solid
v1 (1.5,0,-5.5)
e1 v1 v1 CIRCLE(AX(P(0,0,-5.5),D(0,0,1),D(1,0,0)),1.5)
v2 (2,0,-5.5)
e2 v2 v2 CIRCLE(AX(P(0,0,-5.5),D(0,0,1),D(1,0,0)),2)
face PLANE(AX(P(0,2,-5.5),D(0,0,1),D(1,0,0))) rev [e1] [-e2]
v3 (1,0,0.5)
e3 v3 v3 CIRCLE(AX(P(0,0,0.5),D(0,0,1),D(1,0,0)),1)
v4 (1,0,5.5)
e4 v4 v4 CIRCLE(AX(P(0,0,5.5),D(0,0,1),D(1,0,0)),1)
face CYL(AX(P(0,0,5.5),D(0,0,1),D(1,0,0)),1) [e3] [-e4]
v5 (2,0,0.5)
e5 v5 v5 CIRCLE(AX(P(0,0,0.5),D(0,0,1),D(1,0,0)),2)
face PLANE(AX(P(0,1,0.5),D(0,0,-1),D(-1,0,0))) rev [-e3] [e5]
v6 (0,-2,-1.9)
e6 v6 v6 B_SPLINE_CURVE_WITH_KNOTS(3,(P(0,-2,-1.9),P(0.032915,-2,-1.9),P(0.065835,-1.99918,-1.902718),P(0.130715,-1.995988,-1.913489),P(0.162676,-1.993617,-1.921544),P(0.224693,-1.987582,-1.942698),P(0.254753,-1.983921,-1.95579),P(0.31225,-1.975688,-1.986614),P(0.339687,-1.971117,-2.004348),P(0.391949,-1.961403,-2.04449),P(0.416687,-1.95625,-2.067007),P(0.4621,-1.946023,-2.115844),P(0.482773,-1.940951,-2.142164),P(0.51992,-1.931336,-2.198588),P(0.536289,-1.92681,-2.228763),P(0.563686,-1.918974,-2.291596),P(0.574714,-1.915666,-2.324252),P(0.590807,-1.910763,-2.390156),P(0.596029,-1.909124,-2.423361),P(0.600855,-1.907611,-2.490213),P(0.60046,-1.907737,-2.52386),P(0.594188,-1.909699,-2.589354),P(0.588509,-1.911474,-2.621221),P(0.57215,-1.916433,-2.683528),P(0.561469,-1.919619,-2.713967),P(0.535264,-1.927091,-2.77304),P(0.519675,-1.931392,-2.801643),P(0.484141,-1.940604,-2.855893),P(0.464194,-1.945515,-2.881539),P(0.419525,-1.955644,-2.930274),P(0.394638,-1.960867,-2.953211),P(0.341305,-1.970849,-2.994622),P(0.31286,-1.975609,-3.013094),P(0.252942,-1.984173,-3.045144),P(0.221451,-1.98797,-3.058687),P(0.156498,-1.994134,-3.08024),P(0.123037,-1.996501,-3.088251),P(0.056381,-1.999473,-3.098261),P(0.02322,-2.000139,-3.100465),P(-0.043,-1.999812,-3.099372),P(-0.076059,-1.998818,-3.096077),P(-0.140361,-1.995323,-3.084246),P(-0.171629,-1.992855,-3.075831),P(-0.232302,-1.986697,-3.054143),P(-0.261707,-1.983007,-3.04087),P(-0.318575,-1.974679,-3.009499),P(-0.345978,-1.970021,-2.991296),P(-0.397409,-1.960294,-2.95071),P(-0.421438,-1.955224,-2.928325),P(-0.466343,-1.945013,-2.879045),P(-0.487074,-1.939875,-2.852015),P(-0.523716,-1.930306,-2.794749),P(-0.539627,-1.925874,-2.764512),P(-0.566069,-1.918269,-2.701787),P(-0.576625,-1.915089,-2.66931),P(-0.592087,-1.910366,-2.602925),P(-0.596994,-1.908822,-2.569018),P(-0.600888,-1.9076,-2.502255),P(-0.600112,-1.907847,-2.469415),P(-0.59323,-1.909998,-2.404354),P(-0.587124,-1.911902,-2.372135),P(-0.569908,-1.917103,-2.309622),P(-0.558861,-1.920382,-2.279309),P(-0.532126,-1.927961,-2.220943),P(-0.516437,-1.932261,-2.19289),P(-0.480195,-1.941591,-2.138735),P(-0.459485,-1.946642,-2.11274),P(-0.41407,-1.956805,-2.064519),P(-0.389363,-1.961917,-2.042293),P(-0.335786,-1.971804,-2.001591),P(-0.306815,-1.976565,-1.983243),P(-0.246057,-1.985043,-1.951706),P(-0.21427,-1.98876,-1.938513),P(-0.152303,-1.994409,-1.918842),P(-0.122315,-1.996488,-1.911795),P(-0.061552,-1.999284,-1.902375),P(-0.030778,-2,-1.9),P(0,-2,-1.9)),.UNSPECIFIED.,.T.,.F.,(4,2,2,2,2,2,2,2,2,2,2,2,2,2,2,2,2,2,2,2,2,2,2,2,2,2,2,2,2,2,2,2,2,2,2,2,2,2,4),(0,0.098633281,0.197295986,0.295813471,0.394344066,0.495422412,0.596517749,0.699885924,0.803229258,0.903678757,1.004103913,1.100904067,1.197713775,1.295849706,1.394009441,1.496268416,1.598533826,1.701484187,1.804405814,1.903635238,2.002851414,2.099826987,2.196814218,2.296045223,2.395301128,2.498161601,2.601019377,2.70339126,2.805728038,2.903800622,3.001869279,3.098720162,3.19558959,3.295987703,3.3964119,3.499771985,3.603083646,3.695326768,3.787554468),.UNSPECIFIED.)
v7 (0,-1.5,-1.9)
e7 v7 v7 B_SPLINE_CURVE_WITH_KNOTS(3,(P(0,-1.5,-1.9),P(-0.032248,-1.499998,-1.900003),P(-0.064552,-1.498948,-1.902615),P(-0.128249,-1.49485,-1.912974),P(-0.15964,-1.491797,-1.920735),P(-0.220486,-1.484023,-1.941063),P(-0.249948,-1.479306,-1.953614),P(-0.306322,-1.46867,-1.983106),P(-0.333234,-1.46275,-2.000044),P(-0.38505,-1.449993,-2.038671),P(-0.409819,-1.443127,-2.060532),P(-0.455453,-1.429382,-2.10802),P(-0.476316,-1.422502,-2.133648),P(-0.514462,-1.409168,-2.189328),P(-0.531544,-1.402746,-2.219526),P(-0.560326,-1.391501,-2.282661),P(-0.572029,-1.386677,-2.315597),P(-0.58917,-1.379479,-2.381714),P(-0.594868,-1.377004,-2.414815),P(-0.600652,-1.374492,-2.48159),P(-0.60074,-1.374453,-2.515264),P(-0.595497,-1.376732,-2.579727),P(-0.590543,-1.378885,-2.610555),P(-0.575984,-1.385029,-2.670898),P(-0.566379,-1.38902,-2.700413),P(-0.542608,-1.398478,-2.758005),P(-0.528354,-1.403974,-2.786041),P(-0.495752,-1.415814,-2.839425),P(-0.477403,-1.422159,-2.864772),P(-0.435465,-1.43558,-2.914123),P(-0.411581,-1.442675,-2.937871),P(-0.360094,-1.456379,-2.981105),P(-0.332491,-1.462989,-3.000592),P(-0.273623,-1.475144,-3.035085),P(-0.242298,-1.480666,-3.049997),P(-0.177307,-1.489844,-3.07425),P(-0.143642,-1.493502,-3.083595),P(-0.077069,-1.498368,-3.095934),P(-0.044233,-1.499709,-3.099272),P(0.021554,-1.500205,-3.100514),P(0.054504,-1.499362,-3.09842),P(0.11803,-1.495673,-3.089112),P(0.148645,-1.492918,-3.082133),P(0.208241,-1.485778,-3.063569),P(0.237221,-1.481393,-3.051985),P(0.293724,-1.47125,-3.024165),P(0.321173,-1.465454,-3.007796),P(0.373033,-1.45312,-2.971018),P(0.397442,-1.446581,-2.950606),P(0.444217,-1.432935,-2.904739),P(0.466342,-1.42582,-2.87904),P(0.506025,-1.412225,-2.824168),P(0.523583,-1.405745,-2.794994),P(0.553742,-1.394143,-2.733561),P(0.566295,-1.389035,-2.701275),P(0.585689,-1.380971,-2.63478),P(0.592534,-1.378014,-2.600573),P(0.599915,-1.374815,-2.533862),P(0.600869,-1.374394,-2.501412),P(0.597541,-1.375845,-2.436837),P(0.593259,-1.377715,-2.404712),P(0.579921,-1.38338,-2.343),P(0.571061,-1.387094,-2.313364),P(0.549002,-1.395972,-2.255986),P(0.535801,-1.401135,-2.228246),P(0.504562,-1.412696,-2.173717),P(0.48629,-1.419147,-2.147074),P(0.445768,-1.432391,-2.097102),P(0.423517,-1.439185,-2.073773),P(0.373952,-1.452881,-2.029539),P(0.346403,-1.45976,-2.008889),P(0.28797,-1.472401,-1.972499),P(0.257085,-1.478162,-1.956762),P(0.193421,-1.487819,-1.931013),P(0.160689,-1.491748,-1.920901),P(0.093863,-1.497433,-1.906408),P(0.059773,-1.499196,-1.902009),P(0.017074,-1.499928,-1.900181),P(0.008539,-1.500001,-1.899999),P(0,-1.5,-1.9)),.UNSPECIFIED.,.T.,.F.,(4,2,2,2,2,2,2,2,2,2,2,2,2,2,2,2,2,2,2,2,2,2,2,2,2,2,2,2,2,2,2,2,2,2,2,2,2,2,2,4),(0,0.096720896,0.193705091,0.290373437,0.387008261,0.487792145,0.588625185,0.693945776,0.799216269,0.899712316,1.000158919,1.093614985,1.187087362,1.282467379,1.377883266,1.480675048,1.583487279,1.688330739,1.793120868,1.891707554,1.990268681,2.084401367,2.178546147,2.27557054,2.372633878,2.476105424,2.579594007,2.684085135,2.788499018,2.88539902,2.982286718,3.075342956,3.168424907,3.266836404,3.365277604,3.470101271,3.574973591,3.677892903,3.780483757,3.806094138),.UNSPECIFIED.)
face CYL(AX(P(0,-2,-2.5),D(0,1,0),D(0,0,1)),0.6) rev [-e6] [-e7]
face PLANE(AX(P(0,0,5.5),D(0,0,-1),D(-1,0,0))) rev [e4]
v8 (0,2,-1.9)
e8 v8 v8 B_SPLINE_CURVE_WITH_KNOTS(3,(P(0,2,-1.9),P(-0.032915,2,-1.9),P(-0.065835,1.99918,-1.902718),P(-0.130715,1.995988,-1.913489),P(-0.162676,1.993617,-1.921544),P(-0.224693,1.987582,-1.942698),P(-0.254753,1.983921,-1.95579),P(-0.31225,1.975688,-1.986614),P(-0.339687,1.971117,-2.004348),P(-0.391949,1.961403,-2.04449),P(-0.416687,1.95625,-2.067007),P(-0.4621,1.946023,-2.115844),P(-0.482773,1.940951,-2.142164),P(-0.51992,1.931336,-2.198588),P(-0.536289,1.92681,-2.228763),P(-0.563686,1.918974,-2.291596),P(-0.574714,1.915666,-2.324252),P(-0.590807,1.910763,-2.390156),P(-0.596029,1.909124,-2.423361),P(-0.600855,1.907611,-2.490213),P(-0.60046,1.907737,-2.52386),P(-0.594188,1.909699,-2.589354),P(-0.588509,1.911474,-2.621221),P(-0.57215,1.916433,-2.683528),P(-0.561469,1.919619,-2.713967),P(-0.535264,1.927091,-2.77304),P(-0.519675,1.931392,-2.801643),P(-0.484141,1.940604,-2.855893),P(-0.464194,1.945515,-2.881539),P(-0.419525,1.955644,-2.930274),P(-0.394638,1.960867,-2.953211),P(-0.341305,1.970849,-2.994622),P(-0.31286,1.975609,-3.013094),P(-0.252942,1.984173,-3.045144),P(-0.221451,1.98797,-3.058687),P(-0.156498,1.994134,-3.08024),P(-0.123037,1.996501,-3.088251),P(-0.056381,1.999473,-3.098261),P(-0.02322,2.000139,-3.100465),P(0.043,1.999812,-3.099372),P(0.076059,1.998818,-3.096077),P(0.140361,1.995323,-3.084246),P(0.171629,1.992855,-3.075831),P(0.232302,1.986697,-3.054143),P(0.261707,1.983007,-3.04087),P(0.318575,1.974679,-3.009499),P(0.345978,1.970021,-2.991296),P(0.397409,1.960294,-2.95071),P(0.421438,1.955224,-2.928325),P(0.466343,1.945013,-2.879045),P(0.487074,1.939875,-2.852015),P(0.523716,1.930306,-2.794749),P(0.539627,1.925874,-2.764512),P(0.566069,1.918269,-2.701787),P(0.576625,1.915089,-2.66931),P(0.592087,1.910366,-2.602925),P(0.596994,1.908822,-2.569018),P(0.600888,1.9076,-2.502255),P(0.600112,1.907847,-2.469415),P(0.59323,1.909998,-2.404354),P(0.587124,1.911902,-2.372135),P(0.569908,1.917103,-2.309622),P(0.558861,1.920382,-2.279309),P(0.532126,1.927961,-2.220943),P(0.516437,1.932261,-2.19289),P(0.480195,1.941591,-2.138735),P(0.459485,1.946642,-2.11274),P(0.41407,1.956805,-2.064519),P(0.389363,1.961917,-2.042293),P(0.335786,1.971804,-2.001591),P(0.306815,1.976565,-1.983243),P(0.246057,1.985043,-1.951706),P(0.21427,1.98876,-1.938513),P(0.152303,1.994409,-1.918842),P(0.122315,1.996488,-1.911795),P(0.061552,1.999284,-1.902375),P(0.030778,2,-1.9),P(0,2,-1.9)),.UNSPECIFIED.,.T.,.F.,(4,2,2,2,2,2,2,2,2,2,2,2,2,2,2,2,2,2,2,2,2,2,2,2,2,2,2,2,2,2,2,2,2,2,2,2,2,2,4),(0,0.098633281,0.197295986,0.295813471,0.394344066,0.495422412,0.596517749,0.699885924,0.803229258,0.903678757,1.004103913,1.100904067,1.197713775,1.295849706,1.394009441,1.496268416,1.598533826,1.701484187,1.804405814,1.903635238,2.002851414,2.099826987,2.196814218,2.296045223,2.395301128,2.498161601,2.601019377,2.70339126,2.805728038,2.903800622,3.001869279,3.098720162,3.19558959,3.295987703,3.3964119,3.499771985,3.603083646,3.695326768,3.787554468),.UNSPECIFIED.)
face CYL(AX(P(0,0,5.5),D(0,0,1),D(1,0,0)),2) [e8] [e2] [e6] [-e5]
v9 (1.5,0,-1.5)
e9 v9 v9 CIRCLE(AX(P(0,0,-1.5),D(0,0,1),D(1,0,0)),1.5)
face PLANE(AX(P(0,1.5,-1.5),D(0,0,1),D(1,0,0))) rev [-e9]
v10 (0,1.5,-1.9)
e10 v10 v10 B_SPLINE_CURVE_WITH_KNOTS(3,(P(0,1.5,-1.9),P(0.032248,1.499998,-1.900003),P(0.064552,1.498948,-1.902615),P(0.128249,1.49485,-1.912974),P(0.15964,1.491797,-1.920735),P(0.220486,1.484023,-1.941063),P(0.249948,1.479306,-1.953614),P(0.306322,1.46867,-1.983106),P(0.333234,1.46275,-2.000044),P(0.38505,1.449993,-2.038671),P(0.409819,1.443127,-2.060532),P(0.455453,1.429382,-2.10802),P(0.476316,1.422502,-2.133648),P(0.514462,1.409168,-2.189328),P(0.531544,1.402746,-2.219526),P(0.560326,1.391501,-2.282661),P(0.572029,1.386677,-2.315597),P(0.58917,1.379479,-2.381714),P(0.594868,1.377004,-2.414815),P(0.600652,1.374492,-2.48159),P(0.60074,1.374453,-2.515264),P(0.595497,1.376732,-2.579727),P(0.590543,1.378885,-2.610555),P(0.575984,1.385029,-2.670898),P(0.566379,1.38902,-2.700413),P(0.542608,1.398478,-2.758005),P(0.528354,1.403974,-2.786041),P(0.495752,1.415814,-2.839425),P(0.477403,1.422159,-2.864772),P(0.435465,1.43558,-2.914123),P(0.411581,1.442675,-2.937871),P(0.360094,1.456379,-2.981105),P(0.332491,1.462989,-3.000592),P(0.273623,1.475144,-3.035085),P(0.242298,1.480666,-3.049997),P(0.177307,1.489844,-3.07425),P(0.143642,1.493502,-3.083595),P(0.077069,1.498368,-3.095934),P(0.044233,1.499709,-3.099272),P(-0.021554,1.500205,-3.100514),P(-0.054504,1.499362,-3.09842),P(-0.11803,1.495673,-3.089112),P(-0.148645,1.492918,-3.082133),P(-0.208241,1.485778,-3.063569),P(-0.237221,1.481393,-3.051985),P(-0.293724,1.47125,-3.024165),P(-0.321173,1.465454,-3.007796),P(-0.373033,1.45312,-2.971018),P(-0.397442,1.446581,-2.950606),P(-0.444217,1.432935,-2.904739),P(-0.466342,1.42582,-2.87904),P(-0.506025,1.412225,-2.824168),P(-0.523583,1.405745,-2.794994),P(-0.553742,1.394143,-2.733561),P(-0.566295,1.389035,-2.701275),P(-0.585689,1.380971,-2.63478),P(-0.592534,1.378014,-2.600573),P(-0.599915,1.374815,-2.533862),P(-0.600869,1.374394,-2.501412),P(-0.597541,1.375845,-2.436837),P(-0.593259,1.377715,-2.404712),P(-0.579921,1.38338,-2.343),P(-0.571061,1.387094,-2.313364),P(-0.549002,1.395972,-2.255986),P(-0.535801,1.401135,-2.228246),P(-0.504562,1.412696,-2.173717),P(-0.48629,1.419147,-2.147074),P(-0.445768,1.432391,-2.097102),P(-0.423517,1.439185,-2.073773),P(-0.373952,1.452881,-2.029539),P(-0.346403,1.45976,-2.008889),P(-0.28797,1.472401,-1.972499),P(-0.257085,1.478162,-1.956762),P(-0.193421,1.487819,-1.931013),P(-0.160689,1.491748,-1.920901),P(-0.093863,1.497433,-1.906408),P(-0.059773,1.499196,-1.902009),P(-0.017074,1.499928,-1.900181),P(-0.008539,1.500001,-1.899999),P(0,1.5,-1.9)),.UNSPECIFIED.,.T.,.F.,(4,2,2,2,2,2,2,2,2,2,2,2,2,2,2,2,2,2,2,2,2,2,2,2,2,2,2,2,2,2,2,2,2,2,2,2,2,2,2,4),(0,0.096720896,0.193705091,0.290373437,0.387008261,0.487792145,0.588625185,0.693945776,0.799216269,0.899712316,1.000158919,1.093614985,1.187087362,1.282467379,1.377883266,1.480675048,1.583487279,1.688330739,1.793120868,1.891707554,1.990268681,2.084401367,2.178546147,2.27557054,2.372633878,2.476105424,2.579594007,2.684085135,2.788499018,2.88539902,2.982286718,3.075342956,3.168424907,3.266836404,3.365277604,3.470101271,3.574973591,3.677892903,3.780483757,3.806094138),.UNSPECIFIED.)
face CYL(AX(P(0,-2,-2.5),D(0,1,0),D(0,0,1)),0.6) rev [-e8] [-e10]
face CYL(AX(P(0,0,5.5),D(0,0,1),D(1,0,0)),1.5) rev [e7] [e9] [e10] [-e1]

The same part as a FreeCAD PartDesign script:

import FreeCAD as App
import Part
import Sketcher
Q = App.Units.Quantity

doc = App.newDocument("Part")
body = doc.addObject("PartDesign::Body", "Body")

# Sketch on YZ plane
sketch1 = body.newObject("Sketcher::SketchObject", "Sketch")
sketch1.AttachmentSupport = (doc.getObject("YZ_Plane"), [""])
sketch1.MapMode = "FlatFace"
sketch1.addGeometry([
    Part.LineSegment(App.Vector(1, 5.5, 0), App.Vector(0, 5.5, 0)),  # 0
    Part.LineSegment(App.Vector(0, 5.5, 0), App.Vector(0, -1.5, 0)),  # 1
    Part.LineSegment(App.Vector(0, -1.5, 0), App.Vector(1.5, -1.5, 0)),  # 2
    Part.LineSegment(App.Vector(1.5, -1.5, 0), App.Vector(1.5, -5.5, 0)),  # 3
    Part.LineSegment(App.Vector(1.5, -5.5, 0), App.Vector(2, -5.5, 0)),  # 4
    Part.LineSegment(App.Vector(2, -5.5, 0), App.Vector(2, 0.5, 0)),  # 5
    Part.LineSegment(App.Vector(2, 0.5, 0), App.Vector(1, 0.5, 0)),  # 6
    Part.LineSegment(App.Vector(1, 0.5, 0), App.Vector(1, 5.5, 0)),  # 7
], False)
sketch1.addConstraint([
    Sketcher.Constraint("Coincident", 0, 2, 1, 1),
    Sketcher.Constraint("Coincident", 1, 2, 2, 1),
    Sketcher.Constraint("Coincident", 2, 2, 3, 1),
    Sketcher.Constraint("Coincident", 3, 2, 4, 1),
    Sketcher.Constraint("Coincident", 4, 2, 5, 1),
    Sketcher.Constraint("Coincident", 5, 2, 6, 1),
    Sketcher.Constraint("Coincident", 6, 2, 7, 1),
    Sketcher.Constraint("Coincident", 7, 2, 0, 1),
    Sketcher.Constraint("Horizontal", 0),
    Sketcher.Constraint("Vertical", 1),
    Sketcher.Constraint("Horizontal", 2),
    Sketcher.Constraint("Vertical", 3),
    Sketcher.Constraint("Horizontal", 4),
    Sketcher.Constraint("Vertical", 5),
    Sketcher.Constraint("Horizontal", 6),
    Sketcher.Constraint("Vertical", 7),
    Sketcher.Constraint("PointOnObject", 0, 2, -2),
    Sketcher.Constraint("Equal", 0, 6),
    Sketcher.Constraint("DistanceX", 0, 2, 0, 1, Q("1 mm")),
    Sketcher.Constraint("DistanceY", 1, 2, 1, 1, Q("7 mm")),
    Sketcher.Constraint("DistanceY", 3, 2, 3, 1, Q("4 mm")),
    Sketcher.Constraint("DistanceY", 5, 1, 5, 2, Q("6 mm")),
    Sketcher.Constraint("DistanceX", 2, 1, 2, 2, Q("1.5 mm")),
    Sketcher.Constraint("DistanceY", -1, 1, 0, 2, Q("5.5 mm")),
])
revolution = body.newObject("PartDesign::Revolution", "Revolution")
revolution.Profile = sketch1
revolution.ReferenceAxis = (sketch1, ["V_Axis"])
revolution.Angle = 360

# Sketch on XZ plane
sketch2 = body.newObject("Sketcher::SketchObject", "Sketch001")
sketch2.AttachmentSupport = (doc.getObject("XZ_Plane"), [""])
sketch2.MapMode = "FlatFace"
sketch2.addGeometry(Part.Circle(App.Vector(0, -2.5, 0), App.Vector(0, 0, 1), 0.6), False)
sketch2.addConstraint([
    Sketcher.Constraint("PointOnObject", 0, 3, -2),
    Sketcher.Constraint("Diameter", 0, Q("1.2 mm")),
    Sketcher.Constraint("DistanceY", 0, 3, -1, 1, Q("2.5 mm")),
])
pocket1 = body.newObject("PartDesign::Pocket", "Pocket")
pocket1.Profile = sketch2
pocket1.Type = "ThroughAll"
pocket1.Midplane = True

doc.recompute()
